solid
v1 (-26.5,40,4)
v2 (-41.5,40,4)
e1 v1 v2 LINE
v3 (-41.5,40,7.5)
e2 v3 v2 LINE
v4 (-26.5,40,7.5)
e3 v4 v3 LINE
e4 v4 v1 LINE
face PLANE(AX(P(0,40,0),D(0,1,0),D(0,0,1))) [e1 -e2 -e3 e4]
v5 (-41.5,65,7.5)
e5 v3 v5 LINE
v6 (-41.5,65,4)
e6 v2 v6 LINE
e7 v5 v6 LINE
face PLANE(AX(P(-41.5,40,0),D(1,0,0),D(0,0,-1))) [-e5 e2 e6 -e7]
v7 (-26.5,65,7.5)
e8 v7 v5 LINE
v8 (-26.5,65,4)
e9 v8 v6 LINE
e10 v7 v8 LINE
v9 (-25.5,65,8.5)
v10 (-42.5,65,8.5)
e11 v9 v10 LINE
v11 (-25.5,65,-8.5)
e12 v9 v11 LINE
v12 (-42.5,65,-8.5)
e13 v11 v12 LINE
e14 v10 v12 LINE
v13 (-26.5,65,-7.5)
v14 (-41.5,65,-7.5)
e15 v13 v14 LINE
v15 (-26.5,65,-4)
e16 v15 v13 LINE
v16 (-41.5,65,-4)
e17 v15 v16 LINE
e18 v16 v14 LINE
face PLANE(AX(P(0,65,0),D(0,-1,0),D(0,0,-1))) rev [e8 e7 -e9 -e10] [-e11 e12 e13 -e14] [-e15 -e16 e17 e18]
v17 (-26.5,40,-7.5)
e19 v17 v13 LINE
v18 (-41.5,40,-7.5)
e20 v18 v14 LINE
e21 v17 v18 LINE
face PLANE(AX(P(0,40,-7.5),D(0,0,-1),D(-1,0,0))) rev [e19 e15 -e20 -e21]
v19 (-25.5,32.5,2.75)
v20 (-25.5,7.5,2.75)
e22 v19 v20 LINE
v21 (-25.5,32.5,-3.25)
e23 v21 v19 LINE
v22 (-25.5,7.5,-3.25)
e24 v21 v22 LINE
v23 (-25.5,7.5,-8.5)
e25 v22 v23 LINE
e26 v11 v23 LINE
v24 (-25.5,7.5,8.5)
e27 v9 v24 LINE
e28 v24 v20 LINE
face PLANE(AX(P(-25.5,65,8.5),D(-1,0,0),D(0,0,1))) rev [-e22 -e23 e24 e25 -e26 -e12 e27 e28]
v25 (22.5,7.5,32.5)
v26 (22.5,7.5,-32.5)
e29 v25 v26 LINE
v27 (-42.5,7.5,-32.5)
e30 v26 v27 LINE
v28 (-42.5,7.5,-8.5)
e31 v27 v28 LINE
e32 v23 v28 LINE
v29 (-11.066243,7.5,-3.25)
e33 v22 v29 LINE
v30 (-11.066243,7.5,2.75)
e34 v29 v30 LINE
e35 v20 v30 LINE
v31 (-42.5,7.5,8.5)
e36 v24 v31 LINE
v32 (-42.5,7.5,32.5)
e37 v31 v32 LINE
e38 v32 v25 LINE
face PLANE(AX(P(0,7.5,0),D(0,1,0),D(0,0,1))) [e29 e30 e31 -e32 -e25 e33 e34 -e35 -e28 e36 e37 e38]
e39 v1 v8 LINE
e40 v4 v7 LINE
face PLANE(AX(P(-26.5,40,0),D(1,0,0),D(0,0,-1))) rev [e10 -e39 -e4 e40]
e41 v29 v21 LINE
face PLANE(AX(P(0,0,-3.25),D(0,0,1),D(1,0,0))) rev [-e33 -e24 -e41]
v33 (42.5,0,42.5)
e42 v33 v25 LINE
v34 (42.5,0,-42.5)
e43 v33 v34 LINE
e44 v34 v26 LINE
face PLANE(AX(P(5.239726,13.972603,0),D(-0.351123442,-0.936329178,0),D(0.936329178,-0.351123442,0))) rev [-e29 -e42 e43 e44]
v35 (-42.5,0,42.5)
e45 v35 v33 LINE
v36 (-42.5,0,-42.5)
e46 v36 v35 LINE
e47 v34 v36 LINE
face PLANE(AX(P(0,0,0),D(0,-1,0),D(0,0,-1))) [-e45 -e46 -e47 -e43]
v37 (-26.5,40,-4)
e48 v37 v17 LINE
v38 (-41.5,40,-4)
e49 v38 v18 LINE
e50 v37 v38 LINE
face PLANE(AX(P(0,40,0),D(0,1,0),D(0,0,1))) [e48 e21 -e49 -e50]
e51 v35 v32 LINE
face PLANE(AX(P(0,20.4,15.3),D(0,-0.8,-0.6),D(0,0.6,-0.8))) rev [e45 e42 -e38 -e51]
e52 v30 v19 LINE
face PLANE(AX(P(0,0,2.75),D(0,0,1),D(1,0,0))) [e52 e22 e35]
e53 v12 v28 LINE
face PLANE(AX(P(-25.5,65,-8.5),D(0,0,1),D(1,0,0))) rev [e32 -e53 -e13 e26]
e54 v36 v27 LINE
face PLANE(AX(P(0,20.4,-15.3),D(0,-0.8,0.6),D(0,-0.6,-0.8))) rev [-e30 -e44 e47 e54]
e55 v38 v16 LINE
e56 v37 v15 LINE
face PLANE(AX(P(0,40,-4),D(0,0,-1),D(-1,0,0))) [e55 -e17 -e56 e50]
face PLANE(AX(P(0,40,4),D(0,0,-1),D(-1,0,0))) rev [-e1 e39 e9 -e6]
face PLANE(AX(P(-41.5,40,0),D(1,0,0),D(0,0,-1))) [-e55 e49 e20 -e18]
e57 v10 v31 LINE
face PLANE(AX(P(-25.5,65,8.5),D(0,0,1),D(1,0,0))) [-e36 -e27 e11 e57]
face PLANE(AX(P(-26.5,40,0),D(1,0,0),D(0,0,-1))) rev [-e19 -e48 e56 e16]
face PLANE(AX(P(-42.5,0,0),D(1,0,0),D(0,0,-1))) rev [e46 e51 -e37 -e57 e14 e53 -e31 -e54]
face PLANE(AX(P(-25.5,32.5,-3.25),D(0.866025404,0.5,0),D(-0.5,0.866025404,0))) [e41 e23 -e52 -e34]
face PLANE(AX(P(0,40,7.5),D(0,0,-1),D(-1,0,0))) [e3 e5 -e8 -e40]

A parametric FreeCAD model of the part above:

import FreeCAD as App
import Part
import Sketcher
from FreeCAD import Vector
Q = App.Units.Quantity


def add_polygon(sketch, points):
    """Adds a closed chain of lines whose ends are joined by coincident constraints."""
    first, n = sketch.GeometryCount, len(points)
    for a, b in zip(points, points[1:] + points[:1]):
        sketch.addGeometry(Part.LineSegment(App.Vector(*a, 0), App.Vector(*b, 0)), False)
    for i in range(n):
        sketch.addConstraint(Sketcher.Constraint("Coincident", first + i, 2, first + (i + 1) % n, 1))

doc = App.newDocument("Part")
params = doc.addObject("Spreadsheet::Sheet", "Params")
for row, (alias, value) in enumerate([
    ("sketch1_width", "85 mm"),
    ("sketch2_width", "65 mm"),
    ("sketch3_width", "17 mm"),
    ("pad1_length", "57.5 mm"),
    ("sketch4_width", "15 mm"),
    ("sketch4_height", "3.5 mm"),
    ("pocket1_length", "25 mm"),
    ("sketch5_height", "25 mm"),
    ("pad2_length", "6 mm"),
], start=1):
    params.set(f"A{row}", alias)
    params.set(f"B{row}", "=" + value)
    params.setAlias(f"B{row}", alias)

body = doc.addObject("PartDesign::Body", "Body")

sketch1 = doc.addObject("Sketcher::SketchObject", "Sketch")
body.addObject(sketch1)
sketch1.AttachmentSupport = (doc.XZ_Plane, [""])
sketch1.MapMode = "FlatFace"
add_polygon(sketch1, [(-42, -42), (-42, 42), (42, 42), (42, -42)])
sketch1.addConstraint([
    Sketcher.Constraint("Vertical", 0),
    Sketcher.Constraint("Horizontal", 1),
    Sketcher.Constraint("Vertical", 2),
    Sketcher.Constraint("Horizontal", 3),
    Sketcher.Constraint("Symmetric", 0, 2, 2, 2, -1, 1),
    Sketcher.Constraint("Equal", 3, 0),
    Sketcher.Constraint("DistanceX", 1, 1, 1, 2, Q("85 mm")),
])
sketch1.setExpression("Constraints[10]", "Params.sketch1_width")

sketch2 = doc.addObject("Sketcher::SketchObject", "Sketch001")
body.addObject(sketch2)
sketch2.AttachmentSupport = (doc.XZ_Plane, [""])
sketch2.MapMode = "FlatFace"
sketch2.AttachmentOffset = App.Placement(Vector(0, 0, -7.5), App.Rotation())
add_polygon(sketch2, [(-42, -32), (-42, 32), (22, 32), (22, -32)])
sketch2.addConstraint([
    Sketcher.Constraint("Vertical", 0),
    Sketcher.Constraint("Horizontal", 1),
    Sketcher.Constraint("Vertical", 2),
    Sketcher.Constraint("Horizontal", 3),
    Sketcher.Constraint("Equal", 3, 0),
    Sketcher.Constraint("DistanceX", 1, 1, 1, 2, Q("65 mm")),
    Sketcher.Constraint("DistanceX", 0, 2, -1, 1, Q("42.5 mm")),
    Sketcher.Constraint("DistanceY", -1, 1, 0, 2, Q("32.5 mm")),
])
sketch2.setExpression("Constraints[9]", "Params.sketch2_width")

additiveloft = doc.addObject("PartDesign::AdditiveLoft", "AdditiveLoft")
body.addObject(additiveloft)
additiveloft.Profile = sketch1
additiveloft.Sections = [sketch2]

sketch3 = doc.addObject("Sketcher::SketchObject", "Sketch002")
body.addObject(sketch3)
sketch3.AttachmentSupport = (doc.XZ_Plane, [""])
sketch3.MapMode = "FlatFace"
sketch3.AttachmentOffset = App.Placement(Vector(0, 0, -7.5), App.Rotation())
add_polygon(sketch3, [(-42, -8), (-42, 8), (-26, 8), (-26, -8)])
sketch3.addConstraint([
    Sketcher.Constraint("Vertical", 0),
    Sketcher.Constraint("Horizontal", 1),
    Sketcher.Constraint("Vertical", 2),
    Sketcher.Constraint("Horizontal", 3),
    Sketcher.Constraint("Equal", 3, 0),
    Sketcher.Constraint("DistanceX", 1, 1, 1, 2, Q("17 mm")),
    Sketcher.Constraint("DistanceX", 0, 2, -1, 1, Q("42.5 mm")),
    Sketcher.Constraint("DistanceY", -1, 1, 0, 2, Q("8.5 mm")),
])
sketch3.setExpression("Constraints[9]", "Params.sketch3_width")
pad1 = doc.addObject("PartDesign::Pad", "Pad")
body.addObject(pad1)
pad1.Profile = sketch3
pad1.setExpression("Length", "Params.pad1_length")
pad1.Reversed = True

sketch4 = doc.addObject("Sketcher::SketchObject", "Sketch003")
body.addObject(sketch4)
sketch4.AttachmentSupport = (doc.XZ_Plane, [""])
sketch4.MapMode = "FlatFace"
sketch4.AttachmentOffset = App.Placement(Vector(0, 0, -65), App.Rotation())
add_polygon(sketch4, [(-41.5, -7.5), (-41.5, -4), (-26.5, -4), (-26.5, -7.5)])
add_polygon(sketch4, [(-41.5, 4), (-41.5, 7.5), (-26.5, 7.5), (-26.5, 4)])
sketch4.addConstraint([
    Sketcher.Constraint("Vertical", 0),
    Sketcher.Constraint("Horizontal", 1),
    Sketcher.Constraint("Vertical", 2),
    Sketcher.Constraint("Horizontal", 3),
    Sketcher.Constraint("Vertical", 4),
    Sketcher.Constraint("Horizontal", 5),
    Sketcher.Constraint("Vertical", 6),
    Sketcher.Constraint("Horizontal", 7),
    Sketcher.Constraint("Symmetric", 3, 2, 4, 2, -1),
    Sketcher.Constraint("Symmetric", 1, 2, 6, 2, -1),
    Sketcher.Constraint("DistanceX", 1, 1, 1, 2, Q("15 mm")),
    Sketcher.Constraint("DistanceY", 0, 1, 0, 2, Q("3.5 mm")),
    Sketcher.Constraint("DistanceY", 0, 2, -1, 1, Q("4 mm")),
    Sketcher.Constraint("DistanceX", 0, 2, -1, 1, Q("41.5 mm")),
])
sketch4.setExpression("Constraints[18]", "Params.sketch4_width")
sketch4.setExpression("Constraints[19]", "Params.sketch4_height")
pocket1 = doc.addObject("PartDesign::Pocket", "Pocket")
body.addObject(pocket1)
pocket1.Profile = sketch4
pocket1.setExpression("Length", "Params.pocket1_length")
pocket1.Reversed = True

sketch5 = doc.addObject("Sketcher::SketchObject", "Sketch004")
body.addObject(sketch5)
sketch5.AttachmentSupport = (doc.XY_Plane, [""])
sketch5.MapMode = "FlatFace"
sketch5.AttachmentOffset = App.Placement(Vector(0, 0, 2.75), App.Rotation())
add_polygon(sketch5, [(-11, 8), (-26, 32), (-26, 8)])
sketch5.addConstraint([
    Sketcher.Constraint("Vertical", 1),
    Sketcher.Constraint("Horizontal", 2),
    Sketcher.Constraint("DistanceY", 1, 2, 1, 1, Q("25 mm")),
    Sketcher.Constraint("Angle", 0, Q("120 deg")),
    Sketcher.Constraint("DistanceX", 0, 2, -1, 1, Q("25.5 mm")),
    Sketcher.Constraint("DistanceY", -1, 1, 0, 2, Q("32.5 mm")),
])
sketch5.setExpression("Constraints[5]", "Params.sketch5_height")
pad2 = doc.addObject("PartDesign::Pad", "Pad001")
body.addObject(pad2)
pad2.Profile = sketch5
pad2.setExpression("Length", "Params.pad2_length")
pad2.Reversed = True

doc.recompute()
